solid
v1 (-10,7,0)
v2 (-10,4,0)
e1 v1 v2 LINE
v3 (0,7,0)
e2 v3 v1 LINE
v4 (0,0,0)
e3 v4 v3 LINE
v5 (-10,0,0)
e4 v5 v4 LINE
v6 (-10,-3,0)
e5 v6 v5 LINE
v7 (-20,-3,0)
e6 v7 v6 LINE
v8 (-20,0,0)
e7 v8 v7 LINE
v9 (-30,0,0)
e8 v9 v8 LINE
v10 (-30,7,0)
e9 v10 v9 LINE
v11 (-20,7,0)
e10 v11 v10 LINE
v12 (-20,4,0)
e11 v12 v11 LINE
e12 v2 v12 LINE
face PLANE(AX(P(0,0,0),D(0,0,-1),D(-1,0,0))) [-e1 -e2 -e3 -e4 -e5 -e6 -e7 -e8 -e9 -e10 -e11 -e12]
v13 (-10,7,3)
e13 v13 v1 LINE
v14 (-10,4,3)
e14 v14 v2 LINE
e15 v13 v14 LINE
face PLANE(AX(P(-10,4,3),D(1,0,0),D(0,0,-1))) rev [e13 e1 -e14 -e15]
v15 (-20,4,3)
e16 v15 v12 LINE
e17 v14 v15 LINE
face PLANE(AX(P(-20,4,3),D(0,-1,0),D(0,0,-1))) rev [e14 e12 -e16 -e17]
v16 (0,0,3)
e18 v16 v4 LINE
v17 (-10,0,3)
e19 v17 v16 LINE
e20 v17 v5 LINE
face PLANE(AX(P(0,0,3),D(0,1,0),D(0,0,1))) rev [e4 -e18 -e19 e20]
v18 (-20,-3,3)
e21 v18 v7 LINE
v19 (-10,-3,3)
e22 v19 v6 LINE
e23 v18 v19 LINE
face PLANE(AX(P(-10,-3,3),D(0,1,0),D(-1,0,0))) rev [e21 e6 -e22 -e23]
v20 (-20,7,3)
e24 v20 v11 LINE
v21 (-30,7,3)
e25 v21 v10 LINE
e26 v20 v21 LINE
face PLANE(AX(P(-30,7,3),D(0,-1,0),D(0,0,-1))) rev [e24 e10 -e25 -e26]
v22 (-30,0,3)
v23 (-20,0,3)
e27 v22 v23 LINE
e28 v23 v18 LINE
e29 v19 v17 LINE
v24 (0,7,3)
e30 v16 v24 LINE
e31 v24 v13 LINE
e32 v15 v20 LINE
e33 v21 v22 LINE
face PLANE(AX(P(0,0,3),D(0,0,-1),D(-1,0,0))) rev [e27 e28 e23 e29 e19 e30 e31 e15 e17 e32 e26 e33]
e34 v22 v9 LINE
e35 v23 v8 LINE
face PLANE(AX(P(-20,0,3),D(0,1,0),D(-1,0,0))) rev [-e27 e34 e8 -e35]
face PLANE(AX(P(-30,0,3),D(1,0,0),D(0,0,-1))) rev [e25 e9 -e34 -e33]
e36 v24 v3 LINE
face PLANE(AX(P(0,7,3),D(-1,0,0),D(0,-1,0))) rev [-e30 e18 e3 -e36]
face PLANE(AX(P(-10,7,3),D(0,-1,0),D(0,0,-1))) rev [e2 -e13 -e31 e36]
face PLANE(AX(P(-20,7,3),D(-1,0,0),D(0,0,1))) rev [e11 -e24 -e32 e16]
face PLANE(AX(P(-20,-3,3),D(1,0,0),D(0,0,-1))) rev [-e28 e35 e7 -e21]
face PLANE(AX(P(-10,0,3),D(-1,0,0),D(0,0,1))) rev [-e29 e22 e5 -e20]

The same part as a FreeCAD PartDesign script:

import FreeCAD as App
import Part
import Sketcher
from FreeCAD import Vector


def add_polygon(sketch, points):
    """Adds a closed chain of lines whose ends are joined by coincident constraints."""
    first, n = sketch.GeometryCount, len(points)
    for a, b in zip(points, points[1:] + points[:1]):
        sketch.addGeometry(Part.LineSegment(App.Vector(*a, 0), App.Vector(*b, 0)), False)
    for i in range(n):
        sketch.addConstraint(Sketcher.Constraint("Coincident", first + i, 2, first + (i + 1) % n, 1))

doc = App.newDocument("Part")
params = doc.addObject("Spreadsheet::Sheet", "Params")
for row, (alias, value) in enumerate([
    ("sketch1_width", "10 mm"),
    ("sketch1_height", "7 mm"),
    ("sketch1_height2", "3 mm"),
    ("pad1_length", "3 mm"),
], start=1):
    params.set(f"A{row}", alias)
    params.set(f"B{row}", "=" + value)
    params.setAlias(f"B{row}", alias)

body = doc.addObject("PartDesign::Body", "Body")

# Sketch on XY plane
sketch1 = body.newObject("Sketcher::SketchObject", "Sketch")
sketch1.AttachmentSupport = (doc.getObject("XY_Plane"), [""])
sketch1.MapMode = "FlatFace"
add_polygon(sketch1, [(-10, 0), (0, 0), (0, 7), (-10, 7), (-10, 4), (-20, 4), (-20, 7), (-30, 7), (-30, 0), (-20, 0), (-20, -3), (-10, -3)])  # lines 0-11
sketch1.addConstraint(Sketcher.Constraint("Horizontal", 0))
sketch1.addConstraint(Sketcher.Constraint("Vertical", 1))
sketch1.addConstraint(Sketcher.Constraint("Horizontal", 2))
sketch1.addConstraint(Sketcher.Constraint("Vertical", 3))
sketch1.addConstraint(Sketcher.Constraint("Horizontal", 4))
sketch1.addConstraint(Sketcher.Constraint("Vertical", 5))
sketch1.addConstraint(Sketcher.Constraint("Horizontal", 6))
sketch1.addConstraint(Sketcher.Constraint("Vertical", 7))
sketch1.addConstraint(Sketcher.Constraint("Horizontal", 8))
sketch1.addConstraint(Sketcher.Constraint("Vertical", 9))
sketch1.addConstraint(Sketcher.Constraint("Horizontal", 10))
sketch1.addConstraint(Sketcher.Constraint("Vertical", 11))
sketch1.addConstraint(Sketcher.Constraint("Coincident", 0, 2, -1, 1))
sketch1.addConstraint(Sketcher.Constraint("PointOnObject", 7, 2, -1))
sketch1.addConstraint(Sketcher.Constraint("Horizontal", 2, 2, 5, 2))
sketch1.addConstraint(Sketcher.Constraint("Vertical", 5, 2, 8, 2))
sketch1.addConstraint(Sketcher.Constraint("Vertical", 3, 2, 10, 2))
sketch1.addConstraint(Sketcher.Constraint("Equal", 2, 4))
sketch1.addConstraint(Sketcher.Constraint("Equal", 4, 6))
sketch1.addConstraint(Sketcher.Constraint("Equal", 5, 9))
sketch1.addConstraint(Sketcher.Constraint("DistanceX", 0, 1, 0, 2, 10.0))
sketch1.addConstraint(Sketcher.Constraint("DistanceY", 1, 1, 1, 2, 7.0))
sketch1.addConstraint(Sketcher.Constraint("DistanceY", 3, 2, 3, 1, 3.0))
sketch1.setExpression("Constraints[32]", "Params.sketch1_width")
sketch1.setExpression("Constraints[33]", "Params.sketch1_height")
sketch1.setExpression("Constraints[34]", "Params.sketch1_height2")
pad1 = body.newObject("PartDesign::Pad", "Pad")
pad1.Profile = sketch1
pad1.setExpression("Length", "Params.pad1_length")

doc.recompute()
